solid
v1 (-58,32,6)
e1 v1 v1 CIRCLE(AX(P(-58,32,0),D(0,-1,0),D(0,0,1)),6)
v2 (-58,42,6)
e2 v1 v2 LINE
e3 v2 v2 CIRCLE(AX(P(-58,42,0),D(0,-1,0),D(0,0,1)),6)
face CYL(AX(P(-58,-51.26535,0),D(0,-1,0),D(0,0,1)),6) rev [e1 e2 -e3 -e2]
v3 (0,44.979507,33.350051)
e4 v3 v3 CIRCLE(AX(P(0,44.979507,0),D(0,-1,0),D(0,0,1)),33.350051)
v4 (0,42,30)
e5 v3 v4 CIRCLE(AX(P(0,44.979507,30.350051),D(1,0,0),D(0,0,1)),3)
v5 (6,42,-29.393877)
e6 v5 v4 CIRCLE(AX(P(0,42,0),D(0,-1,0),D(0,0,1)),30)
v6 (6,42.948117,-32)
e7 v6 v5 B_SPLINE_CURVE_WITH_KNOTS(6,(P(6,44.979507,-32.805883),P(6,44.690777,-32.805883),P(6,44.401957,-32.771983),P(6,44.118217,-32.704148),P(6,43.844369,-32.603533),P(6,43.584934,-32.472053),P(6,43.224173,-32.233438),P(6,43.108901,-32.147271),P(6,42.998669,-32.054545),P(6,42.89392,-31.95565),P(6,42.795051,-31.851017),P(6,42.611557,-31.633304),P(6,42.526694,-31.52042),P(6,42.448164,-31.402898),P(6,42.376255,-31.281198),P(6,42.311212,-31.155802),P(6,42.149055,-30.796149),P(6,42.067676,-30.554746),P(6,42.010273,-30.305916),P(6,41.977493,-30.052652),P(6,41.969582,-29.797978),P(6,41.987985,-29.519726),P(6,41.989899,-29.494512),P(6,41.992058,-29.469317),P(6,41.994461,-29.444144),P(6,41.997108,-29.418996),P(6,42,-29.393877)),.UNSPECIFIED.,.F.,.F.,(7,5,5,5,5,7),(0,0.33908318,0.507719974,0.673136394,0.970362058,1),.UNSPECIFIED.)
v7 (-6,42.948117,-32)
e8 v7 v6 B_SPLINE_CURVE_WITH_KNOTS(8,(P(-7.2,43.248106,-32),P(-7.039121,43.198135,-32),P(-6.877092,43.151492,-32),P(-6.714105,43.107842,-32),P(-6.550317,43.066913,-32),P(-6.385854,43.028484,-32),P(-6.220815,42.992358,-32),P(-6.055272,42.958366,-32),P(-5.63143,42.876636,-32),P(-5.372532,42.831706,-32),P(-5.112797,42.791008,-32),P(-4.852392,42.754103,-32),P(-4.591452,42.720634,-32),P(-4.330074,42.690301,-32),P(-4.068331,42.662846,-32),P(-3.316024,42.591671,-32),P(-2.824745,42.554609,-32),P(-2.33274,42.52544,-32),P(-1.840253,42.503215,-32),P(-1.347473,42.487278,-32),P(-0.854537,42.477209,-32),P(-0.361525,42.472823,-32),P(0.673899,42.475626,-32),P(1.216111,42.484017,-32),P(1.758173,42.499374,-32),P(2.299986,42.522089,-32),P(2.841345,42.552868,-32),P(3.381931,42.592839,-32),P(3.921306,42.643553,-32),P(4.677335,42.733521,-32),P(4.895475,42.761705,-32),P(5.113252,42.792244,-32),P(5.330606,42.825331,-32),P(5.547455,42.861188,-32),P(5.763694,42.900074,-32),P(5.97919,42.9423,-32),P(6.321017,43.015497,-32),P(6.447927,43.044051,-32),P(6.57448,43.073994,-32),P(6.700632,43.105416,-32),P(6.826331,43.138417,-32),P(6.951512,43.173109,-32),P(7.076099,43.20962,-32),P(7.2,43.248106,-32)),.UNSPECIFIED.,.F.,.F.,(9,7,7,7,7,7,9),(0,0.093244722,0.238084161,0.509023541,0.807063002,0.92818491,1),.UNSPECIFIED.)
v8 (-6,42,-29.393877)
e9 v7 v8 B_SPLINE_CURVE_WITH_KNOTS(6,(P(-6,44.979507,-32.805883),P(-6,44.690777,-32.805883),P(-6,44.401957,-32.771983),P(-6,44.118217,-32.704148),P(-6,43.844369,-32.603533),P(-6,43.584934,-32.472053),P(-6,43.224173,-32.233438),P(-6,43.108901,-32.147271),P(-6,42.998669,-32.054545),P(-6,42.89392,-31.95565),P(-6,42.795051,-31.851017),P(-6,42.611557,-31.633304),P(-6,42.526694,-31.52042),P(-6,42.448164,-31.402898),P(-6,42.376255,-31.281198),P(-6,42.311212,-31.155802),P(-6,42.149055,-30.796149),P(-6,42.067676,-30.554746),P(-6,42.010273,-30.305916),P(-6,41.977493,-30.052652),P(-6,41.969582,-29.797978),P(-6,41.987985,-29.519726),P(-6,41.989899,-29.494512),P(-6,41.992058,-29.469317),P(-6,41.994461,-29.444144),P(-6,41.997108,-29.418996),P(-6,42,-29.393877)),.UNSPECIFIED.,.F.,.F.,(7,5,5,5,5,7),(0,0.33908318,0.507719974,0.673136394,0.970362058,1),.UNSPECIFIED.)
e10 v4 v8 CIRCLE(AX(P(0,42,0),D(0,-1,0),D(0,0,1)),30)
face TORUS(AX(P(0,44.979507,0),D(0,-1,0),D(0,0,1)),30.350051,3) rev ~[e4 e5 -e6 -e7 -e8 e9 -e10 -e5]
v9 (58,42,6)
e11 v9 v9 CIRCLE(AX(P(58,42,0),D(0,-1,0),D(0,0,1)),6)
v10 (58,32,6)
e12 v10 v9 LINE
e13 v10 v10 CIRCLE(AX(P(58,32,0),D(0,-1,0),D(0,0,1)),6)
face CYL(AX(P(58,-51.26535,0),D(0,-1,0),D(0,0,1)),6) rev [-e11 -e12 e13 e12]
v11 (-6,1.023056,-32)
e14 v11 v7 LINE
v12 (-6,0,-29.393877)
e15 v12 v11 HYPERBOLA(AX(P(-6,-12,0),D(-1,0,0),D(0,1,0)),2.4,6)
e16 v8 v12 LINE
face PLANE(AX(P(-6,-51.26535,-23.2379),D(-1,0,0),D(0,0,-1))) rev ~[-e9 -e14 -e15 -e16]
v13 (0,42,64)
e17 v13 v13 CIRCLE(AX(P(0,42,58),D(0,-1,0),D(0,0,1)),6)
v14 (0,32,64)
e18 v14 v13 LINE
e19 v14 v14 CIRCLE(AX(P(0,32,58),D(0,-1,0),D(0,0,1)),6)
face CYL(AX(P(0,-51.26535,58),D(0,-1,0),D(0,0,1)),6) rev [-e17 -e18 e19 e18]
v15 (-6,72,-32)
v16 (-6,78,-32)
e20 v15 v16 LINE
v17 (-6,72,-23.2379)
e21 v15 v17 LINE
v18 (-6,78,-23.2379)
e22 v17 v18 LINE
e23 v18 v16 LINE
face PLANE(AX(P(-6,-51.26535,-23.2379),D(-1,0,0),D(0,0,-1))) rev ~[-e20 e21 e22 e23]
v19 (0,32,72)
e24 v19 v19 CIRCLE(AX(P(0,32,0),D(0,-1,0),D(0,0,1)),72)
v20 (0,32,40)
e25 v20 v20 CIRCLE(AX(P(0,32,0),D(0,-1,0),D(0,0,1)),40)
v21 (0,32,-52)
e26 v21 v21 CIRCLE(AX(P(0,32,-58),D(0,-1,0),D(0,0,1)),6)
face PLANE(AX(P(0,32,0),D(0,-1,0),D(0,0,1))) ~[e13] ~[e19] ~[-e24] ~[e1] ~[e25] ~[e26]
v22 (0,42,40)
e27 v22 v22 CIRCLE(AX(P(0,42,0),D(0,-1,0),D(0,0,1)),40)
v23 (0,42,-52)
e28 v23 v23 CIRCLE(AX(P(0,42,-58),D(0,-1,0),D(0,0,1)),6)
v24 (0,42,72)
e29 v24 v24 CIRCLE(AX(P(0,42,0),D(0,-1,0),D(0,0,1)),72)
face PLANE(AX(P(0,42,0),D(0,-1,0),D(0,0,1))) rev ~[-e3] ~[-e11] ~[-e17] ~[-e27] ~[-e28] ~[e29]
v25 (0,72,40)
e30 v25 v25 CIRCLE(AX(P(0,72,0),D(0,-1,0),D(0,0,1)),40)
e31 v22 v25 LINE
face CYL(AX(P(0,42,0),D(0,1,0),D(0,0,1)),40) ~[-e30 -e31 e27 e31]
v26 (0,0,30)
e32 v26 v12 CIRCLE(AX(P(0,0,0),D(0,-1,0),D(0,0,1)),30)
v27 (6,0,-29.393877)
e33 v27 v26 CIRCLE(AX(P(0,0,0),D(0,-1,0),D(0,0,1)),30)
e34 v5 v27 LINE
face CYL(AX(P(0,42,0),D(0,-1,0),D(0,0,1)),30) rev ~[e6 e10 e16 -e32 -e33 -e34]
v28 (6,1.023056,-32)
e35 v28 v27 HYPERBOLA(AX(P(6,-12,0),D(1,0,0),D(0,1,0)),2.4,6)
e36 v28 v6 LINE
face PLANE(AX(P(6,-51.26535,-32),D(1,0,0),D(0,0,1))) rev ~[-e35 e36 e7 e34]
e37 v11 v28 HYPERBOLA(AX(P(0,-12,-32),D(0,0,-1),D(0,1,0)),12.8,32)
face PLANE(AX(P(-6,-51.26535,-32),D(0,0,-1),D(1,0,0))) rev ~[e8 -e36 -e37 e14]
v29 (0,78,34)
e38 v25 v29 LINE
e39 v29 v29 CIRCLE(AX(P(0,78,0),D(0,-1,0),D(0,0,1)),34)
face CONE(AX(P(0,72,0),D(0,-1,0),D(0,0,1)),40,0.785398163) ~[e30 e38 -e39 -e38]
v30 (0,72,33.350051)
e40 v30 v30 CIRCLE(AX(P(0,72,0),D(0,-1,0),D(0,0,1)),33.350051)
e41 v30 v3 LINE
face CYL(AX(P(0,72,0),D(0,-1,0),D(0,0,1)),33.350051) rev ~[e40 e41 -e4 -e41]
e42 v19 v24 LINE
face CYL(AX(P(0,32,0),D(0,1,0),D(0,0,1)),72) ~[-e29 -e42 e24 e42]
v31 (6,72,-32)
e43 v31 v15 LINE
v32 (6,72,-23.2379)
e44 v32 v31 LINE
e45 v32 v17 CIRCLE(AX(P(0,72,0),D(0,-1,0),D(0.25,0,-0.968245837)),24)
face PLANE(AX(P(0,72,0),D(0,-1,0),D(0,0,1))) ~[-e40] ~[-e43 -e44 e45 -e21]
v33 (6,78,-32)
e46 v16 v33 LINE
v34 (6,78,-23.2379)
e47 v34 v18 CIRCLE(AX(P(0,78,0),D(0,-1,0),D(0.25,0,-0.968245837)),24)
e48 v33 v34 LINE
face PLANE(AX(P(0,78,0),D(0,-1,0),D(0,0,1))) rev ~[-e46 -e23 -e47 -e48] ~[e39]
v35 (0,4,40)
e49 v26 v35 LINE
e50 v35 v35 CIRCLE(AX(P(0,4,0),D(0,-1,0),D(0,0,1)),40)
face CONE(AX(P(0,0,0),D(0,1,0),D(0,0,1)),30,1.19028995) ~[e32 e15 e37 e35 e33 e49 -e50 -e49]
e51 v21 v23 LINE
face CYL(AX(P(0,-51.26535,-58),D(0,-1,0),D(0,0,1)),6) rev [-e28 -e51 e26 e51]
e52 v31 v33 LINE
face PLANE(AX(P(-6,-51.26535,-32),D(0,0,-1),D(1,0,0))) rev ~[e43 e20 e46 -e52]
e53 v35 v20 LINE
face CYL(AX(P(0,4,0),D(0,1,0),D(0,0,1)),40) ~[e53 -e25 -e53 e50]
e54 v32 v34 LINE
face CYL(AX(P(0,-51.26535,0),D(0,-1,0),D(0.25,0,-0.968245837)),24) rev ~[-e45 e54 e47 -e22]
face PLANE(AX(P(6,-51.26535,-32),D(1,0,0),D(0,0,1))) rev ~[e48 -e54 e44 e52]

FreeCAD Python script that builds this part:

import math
import FreeCAD as App
import Part
import Sketcher
from FreeCAD import Vector
Q = App.Units.Quantity

doc = App.newDocument("Part")
body = doc.addObject("PartDesign::Body", "Body")

sketch1 = doc.addObject("Sketcher::SketchObject", "Sketch")
body.addObject(sketch1)
sketch1.AttachmentSupport = (doc.XY_Plane, [""])
sketch1.MapMode = "FlatFace"
sketch1.addGeometry([
    Part.LineSegment(Vector(30, 0, 0), Vector(40, 4, 0)),
    Part.LineSegment(Vector(40, 4, 0), Vector(40, 32, 0)),
    Part.LineSegment(Vector(40, 32, 0), Vector(72, 32, 0)),
    Part.LineSegment(Vector(72, 32, 0), Vector(72, 42, 0)),
    Part.LineSegment(Vector(72, 42, 0), Vector(40, 42, 0)),
    Part.LineSegment(Vector(40, 42, 0), Vector(40, 72, 0)),
    Part.LineSegment(Vector(40, 72, 0), Vector(34, 78, 0)),
    Part.LineSegment(Vector(34, 78, 0), Vector(0, 78, 0)),
    Part.LineSegment(Vector(0, 78, 0), Vector(0, 72, 0)),
    Part.LineSegment(Vector(0, 72, 0), Vector(33.350051, 72, 0)),
    Part.LineSegment(Vector(33.350051, 72, 0), Vector(33.350051, 44.979507, 0)),
    Part.ArcOfCircle(Part.Circle(Vector(30.350051, 44.979507, 0), Vector(0, 0, 1), 3), math.radians(-96.700754), math.radians(0)),
    Part.LineSegment(Vector(30, 42, 0), Vector(30, 0, 0)),
], False)
sketch1.addConstraint([
    Sketcher.Constraint("Coincident", 0, 2, 1, 1),
    Sketcher.Constraint("Coincident", 1, 2, 2, 1),
    Sketcher.Constraint("Coincident", 2, 2, 3, 1),
    Sketcher.Constraint("Coincident", 3, 2, 4, 1),
    Sketcher.Constraint("Coincident", 4, 2, 5, 1),
    Sketcher.Constraint("Coincident", 5, 2, 6, 1),
    Sketcher.Constraint("Coincident", 6, 2, 7, 1),
    Sketcher.Constraint("Coincident", 7, 2, 8, 1),
    Sketcher.Constraint("Coincident", 8, 2, 9, 1),
    Sketcher.Constraint("Coincident", 9, 2, 10, 1),
    Sketcher.Constraint("Tangent", 10, 2, 11, 2),
    Sketcher.Constraint("Coincident", 11, 1, 12, 1),
    Sketcher.Constraint("Coincident", 12, 2, 0, 1),
    Sketcher.Constraint("Vertical", 1),
    Sketcher.Constraint("Horizontal", 2),
    Sketcher.Constraint("Vertical", 3),
    Sketcher.Constraint("Horizontal", 4),
    Sketcher.Constraint("Vertical", 5),
    Sketcher.Constraint("Horizontal", 7),
    Sketcher.Constraint("Vertical", 8),
    Sketcher.Constraint("Horizontal", 9),
    Sketcher.Constraint("Vertical", 10),
    Sketcher.Constraint("Vertical", 12),
    Sketcher.Constraint("PointOnObject", 7, 2, -2),
    Sketcher.Constraint("PointOnObject", 12, 2, -1),
    Sketcher.Constraint("Horizontal", 5, 2, 8, 2),
    Sketcher.Constraint("Horizontal", 4, 2, 11, 1),
    Sketcher.Constraint("Vertical", 1, 2, 4, 2),
    Sketcher.Constraint("Radius", 11, 3.0),
    Sketcher.Constraint("DistanceX", 2, 1, 2, 2, 32.0),
    Sketcher.Constraint("DistanceX", 7, 2, 7, 1, 34.0),
    Sketcher.Constraint("DistanceY", 1, 1, 1, 2, 28.0),
    Sketcher.Constraint("DistanceY", 3, 1, 3, 2, 10.0),
    Sketcher.Constraint("DistanceY", 5, 1, 5, 2, 30.0),
    Sketcher.Constraint("DistanceY", 8, 2, 8, 1, 6.0),
    Sketcher.Constraint("DistanceY", 12, 2, 12, 1, 42.0),
    Sketcher.Constraint("Angle", 6, Q("135 deg")),
    Sketcher.Constraint("DistanceX", -1, 1, 11, 1, 30.0),
    Sketcher.Constraint("DistanceX", 9, 1, 9, 2, 33.350051),
])
revolution = doc.addObject("PartDesign::Revolution", "Revolution")
body.addObject(revolution)
revolution.Profile = sketch1
revolution.ReferenceAxis = (sketch1, ["V_Axis"])
revolution.Angle = 360

sketch2 = doc.addObject("Sketcher::SketchObject", "Sketch001")
body.addObject(sketch2)
sketch2.AttachmentSupport = (doc.XZ_Plane, [""])
sketch2.MapMode = "FlatFace"
sketch2.AttachmentOffset = App.Placement(Vector(0, 0, -78), App.Rotation())
sketch2.addGeometry([
    Part.LineSegment(Vector(-6, -32, 0), Vector(-6, -23.2379, 0)),
    Part.ArcOfCircle(Part.Circle(Vector(0, 0, 0), Vector(0, 0, 1), 24), math.radians(-75.522488), math.radians(255.522488)),
    Part.LineSegment(Vector(6, -23.2379, 0), Vector(6, -32, 0)),
    Part.LineSegment(Vector(6, -32, 0), Vector(-6, -32, 0)),
], False)
sketch2.addConstraint([
    Sketcher.Constraint("Coincident", 0, 2, 1, 2),
    Sketcher.Constraint("Coincident", 1, 1, 2, 1),
    Sketcher.Constraint("Coincident", 2, 2, 3, 1),
    Sketcher.Constraint("Coincident", 3, 2, 0, 1),
    Sketcher.Constraint("Vertical", 0),
    Sketcher.Constraint("Vertical", 2),
    Sketcher.Constraint("Horizontal", 3),
    Sketcher.Constraint("Coincident", 1, 3, -1, 1),
    Sketcher.Constraint("Horizontal", 0, 2, 1, 1),
    Sketcher.Constraint("Radius", 1, 24.0),
    Sketcher.Constraint("DistanceX", 3, 2, 3, 1, 12.0),
    Sketcher.Constraint("DistanceY", 2, 2, -1, 1, 32.0),
])
pocket1 = doc.addObject("PartDesign::Pocket", "Pocket")
body.addObject(pocket1)
pocket1.Profile = sketch2
pocket1.Type = "ThroughAll"
pocket1.Midplane = True

sketch3 = doc.addObject("Sketcher::SketchObject", "Sketch002")
body.addObject(sketch3)
sketch3.AttachmentSupport = (doc.XZ_Plane, [""])
sketch3.MapMode = "FlatFace"
sketch3.AttachmentOffset = App.Placement(Vector(0, 0, -78), App.Rotation())
sketch3.addGeometry([
    Part.Circle(Vector(0, -58, 0), Vector(0, 0, 1), 6),
    Part.Circle(Vector(58, 0, 0), Vector(0, 0, 1), 6),
    Part.Circle(Vector(0, 58, 0), Vector(0, 0, 1), 6),
    Part.Circle(Vector(-58, 0, 0), Vector(0, 0, 1), 6),
], False)
sketch3.addConstraint([
    Sketcher.Constraint("Equal", 0, 1),
    Sketcher.Constraint("Equal", 1, 2),
    Sketcher.Constraint("Equal", 2, 3),
    Sketcher.Constraint("Symmetric", 0, 3, 2, 3, -1, 1),
    Sketcher.Constraint("Symmetric", 1, 3, 3, 3, -1, 1),
    Sketcher.Constraint("PointOnObject", 0, 3, -2),
    Sketcher.Constraint("PointOnObject", 1, 3, -1),
    Sketcher.Constraint("Diameter", 0, 12.0),
    Sketcher.Constraint("DistanceY", 0, 3, -1, 1, 58.0),
    Sketcher.Constraint("DistanceX", -1, 1, 1, 3, 58.0),
])
pocket2 = doc.addObject("PartDesign::Pocket", "Pocket001")
body.addObject(pocket2)
pocket2.Profile = sketch3
pocket2.Type = "ThroughAll"
pocket2.Midplane = True

doc.recompute()
